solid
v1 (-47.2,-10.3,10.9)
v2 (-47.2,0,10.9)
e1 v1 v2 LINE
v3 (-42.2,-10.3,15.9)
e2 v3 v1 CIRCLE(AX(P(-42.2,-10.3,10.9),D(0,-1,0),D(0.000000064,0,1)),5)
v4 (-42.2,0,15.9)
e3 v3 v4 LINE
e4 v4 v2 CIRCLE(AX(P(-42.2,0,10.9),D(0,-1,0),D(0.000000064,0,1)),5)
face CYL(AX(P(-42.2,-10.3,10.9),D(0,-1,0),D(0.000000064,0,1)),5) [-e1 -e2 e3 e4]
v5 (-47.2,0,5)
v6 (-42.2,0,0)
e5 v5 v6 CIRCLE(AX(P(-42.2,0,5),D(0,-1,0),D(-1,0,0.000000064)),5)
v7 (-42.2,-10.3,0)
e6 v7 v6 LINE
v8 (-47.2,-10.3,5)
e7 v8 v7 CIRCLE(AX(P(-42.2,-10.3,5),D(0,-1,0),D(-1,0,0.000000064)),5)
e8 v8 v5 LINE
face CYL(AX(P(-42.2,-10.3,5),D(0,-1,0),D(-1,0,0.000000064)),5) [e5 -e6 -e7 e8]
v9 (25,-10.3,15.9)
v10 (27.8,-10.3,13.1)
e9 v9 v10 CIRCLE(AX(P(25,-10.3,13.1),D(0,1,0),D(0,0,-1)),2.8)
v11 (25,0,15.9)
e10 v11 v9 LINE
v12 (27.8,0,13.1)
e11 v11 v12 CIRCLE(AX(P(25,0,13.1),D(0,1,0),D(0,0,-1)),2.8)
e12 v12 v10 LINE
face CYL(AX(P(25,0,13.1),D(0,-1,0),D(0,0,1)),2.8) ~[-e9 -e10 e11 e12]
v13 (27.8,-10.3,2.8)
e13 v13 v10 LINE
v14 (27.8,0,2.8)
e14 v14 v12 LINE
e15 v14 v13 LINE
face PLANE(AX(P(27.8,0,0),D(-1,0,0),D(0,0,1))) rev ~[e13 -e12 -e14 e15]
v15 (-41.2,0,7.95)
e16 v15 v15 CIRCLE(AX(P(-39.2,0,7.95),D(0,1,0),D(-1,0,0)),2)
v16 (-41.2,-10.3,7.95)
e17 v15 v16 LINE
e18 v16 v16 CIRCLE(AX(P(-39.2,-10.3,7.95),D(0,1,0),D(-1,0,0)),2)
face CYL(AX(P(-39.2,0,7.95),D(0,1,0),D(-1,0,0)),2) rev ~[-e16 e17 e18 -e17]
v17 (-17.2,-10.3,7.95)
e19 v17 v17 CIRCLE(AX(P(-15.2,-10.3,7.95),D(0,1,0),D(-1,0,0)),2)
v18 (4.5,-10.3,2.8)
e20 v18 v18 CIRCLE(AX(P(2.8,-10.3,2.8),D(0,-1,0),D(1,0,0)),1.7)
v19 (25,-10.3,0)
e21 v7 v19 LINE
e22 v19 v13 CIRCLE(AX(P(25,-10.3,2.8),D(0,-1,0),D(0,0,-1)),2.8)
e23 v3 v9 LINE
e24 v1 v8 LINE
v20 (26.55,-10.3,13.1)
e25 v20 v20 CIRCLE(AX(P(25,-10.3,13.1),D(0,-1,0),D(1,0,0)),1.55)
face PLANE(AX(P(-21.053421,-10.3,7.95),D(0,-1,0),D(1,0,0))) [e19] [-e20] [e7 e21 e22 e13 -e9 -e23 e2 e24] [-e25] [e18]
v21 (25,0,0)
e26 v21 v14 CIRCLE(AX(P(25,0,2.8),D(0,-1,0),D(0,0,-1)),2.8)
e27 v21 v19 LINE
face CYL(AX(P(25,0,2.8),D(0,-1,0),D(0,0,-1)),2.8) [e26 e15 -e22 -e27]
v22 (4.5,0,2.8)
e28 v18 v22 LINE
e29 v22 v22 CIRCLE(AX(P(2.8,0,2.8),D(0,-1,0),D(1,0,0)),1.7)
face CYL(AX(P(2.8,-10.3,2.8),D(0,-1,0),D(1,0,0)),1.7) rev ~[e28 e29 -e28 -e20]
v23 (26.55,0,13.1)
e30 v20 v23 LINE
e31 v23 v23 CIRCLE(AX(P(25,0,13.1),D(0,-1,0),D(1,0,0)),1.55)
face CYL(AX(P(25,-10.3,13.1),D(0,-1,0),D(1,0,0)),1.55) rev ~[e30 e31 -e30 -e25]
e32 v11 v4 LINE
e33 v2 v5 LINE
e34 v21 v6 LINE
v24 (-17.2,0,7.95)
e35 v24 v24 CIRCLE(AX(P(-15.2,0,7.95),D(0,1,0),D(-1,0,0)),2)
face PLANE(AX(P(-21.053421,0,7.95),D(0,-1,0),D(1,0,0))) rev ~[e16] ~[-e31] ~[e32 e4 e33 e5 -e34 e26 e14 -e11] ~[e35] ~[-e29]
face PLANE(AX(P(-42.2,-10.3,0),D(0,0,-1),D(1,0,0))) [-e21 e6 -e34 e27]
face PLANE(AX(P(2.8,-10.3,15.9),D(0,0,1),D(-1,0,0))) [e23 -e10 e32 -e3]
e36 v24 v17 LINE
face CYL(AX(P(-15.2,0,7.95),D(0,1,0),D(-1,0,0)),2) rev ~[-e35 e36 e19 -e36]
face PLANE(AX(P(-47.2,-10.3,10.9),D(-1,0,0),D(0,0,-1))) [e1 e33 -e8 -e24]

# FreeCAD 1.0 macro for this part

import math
import FreeCAD as App
import Part
import Sketcher
Q = App.Units.Quantity


def edges_at(feature, points):
    """Names of the edges that pass closest to the given points."""
    edges = feature.Shape.Edges
    near = lambda p: min(range(len(edges)), key=lambda i: edges[i].distToShape(Part.Vertex(*p))[0])
    return sorted({f"Edge{near(p) + 1}" for p in points})


def add_polygon(sketch, points):
    """Adds a closed chain of lines whose ends are joined by coincident constraints."""
    first, n = sketch.GeometryCount, len(points)
    for a, b in zip(points, points[1:] + points[:1]):
        sketch.addGeometry(Part.LineSegment(App.Vector(*a, 0), App.Vector(*b, 0)), False)
    for i in range(n):
        sketch.addConstraint(Sketcher.Constraint("Coincident", first + i, 2, first + (i + 1) % n, 1))

doc = App.newDocument("Part")
params = doc.addObject("Spreadsheet::Sheet", "Params")
for row, (alias, value) in enumerate([
    ("sketch1_width", "27.8 mm"),
    ("sketch1_height", "15.9 mm"),
    ("pad1_length", "10.3 mm"),
    ("sketch2_diameter", "3.4 mm"),
    ("sketch2_diameter2", "3.1 mm"),
    ("fillet_radius", "2.8 mm"),
    ("sketch3_radius", "5 mm"),
    ("sketch3_radius2", "2.8 mm"),
    ("sketch3_width", "45 mm"),
    ("sketch3_height", "5.9 mm"),
    ("pad2_length", "10.3 mm"),
    ("sketch4_diameter", "4 mm"),
], start=1):
    params.set(f"A{row}", alias)
    params.set(f"B{row}", "=" + value)
    params.setAlias(f"B{row}", alias)

body = doc.addObject("PartDesign::Body", "Body")

# Sketch on XZ plane
sketch1 = body.newObject("Sketcher::SketchObject", "Sketch")
sketch1.AttachmentSupport = (doc.getObject("XZ_Plane"), [""])
sketch1.MapMode = "FlatFace"
add_polygon(sketch1, [(0, 16), (0, 0), (28, 0), (28, 16)])  # lines 0-3
sketch1.addConstraint([
    Sketcher.Constraint("Vertical", 0),
    Sketcher.Constraint("Horizontal", 1),
    Sketcher.Constraint("Vertical", 2),
    Sketcher.Constraint("Horizontal", 3),
    Sketcher.Constraint("Coincident", 0, 2, -1, 1),
    Sketcher.Constraint("DistanceX", 1, 1, 1, 2, Q("27.8 mm")),
    Sketcher.Constraint("DistanceY", 0, 2, 0, 1, Q("15.9 mm")),
])
sketch1.setExpression("Constraints[9]", "Params.sketch1_width")
sketch1.setExpression("Constraints[10]", "Params.sketch1_height")
pad1 = body.newObject("PartDesign::Pad", "Pad")
pad1.Profile = sketch1
pad1.setExpression("Length", "Params.pad1_length")

# Sketch on XZ plane
sketch2 = body.newObject("Sketcher::SketchObject", "Sketch001")
sketch2.AttachmentSupport = (doc.getObject("XZ_Plane"), [""])
sketch2.MapMode = "FlatFace"
sketch2.AttachmentOffset = App.Placement(App.Vector(0, 0, 10.3), App.Rotation())
sketch2.addGeometry([
    Part.Circle(App.Vector(2.8, 2.8, 0), App.Vector(0, 0, 1), 1.7),
    Part.Circle(App.Vector(25, 13.1, 0), App.Vector(0, 0, 1), 1.6),
], False)
sketch2.addConstraint([
    Sketcher.Constraint("Diameter", 0, Q("3.4 mm")),
    Sketcher.Constraint("Diameter", 1, Q("3.1 mm")),
    Sketcher.Constraint("DistanceX", -1, 1, 1, 3, Q("25 mm")),
    Sketcher.Constraint("DistanceX", -1, 1, 0, 3, Q("2.8 mm")),
    Sketcher.Constraint("DistanceY", -1, 1, 0, 3, Q("2.8 mm")),
    Sketcher.Constraint("DistanceY", -1, 1, 1, 3, Q("13.1 mm")),
])
sketch2.setExpression("Constraints[0]", "Params.sketch2_diameter")
sketch2.setExpression("Constraints[1]", "Params.sketch2_diameter2")
pocket1 = body.newObject("PartDesign::Pocket", "Pocket")
pocket1.Profile = sketch2
pocket1.Type = "ThroughAll"
doc.recompute()

fillet = body.newObject("PartDesign::Fillet", "Fillet")
fillet.Base = (pocket1, edges_at(pocket1, [
    (0, -5.15, 0),
    (0, -5.15, 15.9),
    (27.8, -5.15, 0),
    (27.8, -5.15, 15.9),
]))
fillet.setExpression("Radius", "Params.fillet_radius")

# Sketch on XZ plane
sketch3 = body.newObject("Sketcher::SketchObject", "Sketch002")
sketch3.AttachmentSupport = (doc.getObject("XZ_Plane"), [""])
sketch3.MapMode = "FlatFace"
sketch3.AttachmentOffset = App.Placement(App.Vector(0, 0, 10.3), App.Rotation())
sketch3.addGeometry([
    Part.ArcOfCircle(Part.Circle(App.Vector(2.8, 13.1, 0), App.Vector(0, 0, 1), 2.8), math.radians(90), math.radians(180)),  # 0
    Part.LineSegment(App.Vector(2.8, 15.9, 0), App.Vector(-42.2, 15.9, 0)),  # 1
    Part.ArcOfCircle(Part.Circle(App.Vector(-42.2, 10.9, 0), App.Vector(0, 0, 1), 5), math.radians(90), math.radians(180)),  # 2
    Part.LineSegment(App.Vector(-47.2, 10.9, 0), App.Vector(-47.2, 5, 0)),  # 3
    Part.ArcOfCircle(Part.Circle(App.Vector(-42.2, 5, 0), App.Vector(0, 0, 1), 5), math.radians(180), math.radians(270)),  # 4
    Part.LineSegment(App.Vector(-42.2, 0, 0), App.Vector(2.8, 0, 0)),  # 5
    Part.ArcOfCircle(Part.Circle(App.Vector(2.8, 2.8, 0), App.Vector(0, 0, 1), 2.8), math.radians(180), math.radians(270)),  # 6
    Part.LineSegment(App.Vector(0, 2.8, 0), App.Vector(0, 13.1, 0)),  # 7
], False)
sketch3.addConstraint([
    Sketcher.Constraint("Tangent", 0, 1, 1, 1),
    Sketcher.Constraint("Tangent", 1, 2, 2, 1),
    Sketcher.Constraint("Tangent", 2, 2, 3, 1),
    Sketcher.Constraint("Tangent", 3, 2, 4, 1),
    Sketcher.Constraint("Tangent", 4, 2, 5, 1),
    Sketcher.Constraint("Tangent", 5, 2, 6, 2),
    Sketcher.Constraint("Tangent", 6, 1, 7, 1),
    Sketcher.Constraint("Tangent", 7, 2, 0, 2),
    Sketcher.Constraint("Horizontal", 1),
    Sketcher.Constraint("Vertical", 3),
    Sketcher.Constraint("Horizontal", 5),
    Sketcher.Constraint("Vertical", 7),
    Sketcher.Constraint("Equal", 2, 4),
    Sketcher.Constraint("Equal", 0, 6),
    Sketcher.Constraint("PointOnObject", 4, 2, -1),
    Sketcher.Constraint("PointOnObject", 6, 1, -2),
    Sketcher.Constraint("Radius", 2, Q("5 mm")),
    Sketcher.Constraint("Radius", 0, Q("2.8 mm")),
    Sketcher.Constraint("DistanceX", 1, 2, 1, 1, Q("45 mm")),
    Sketcher.Constraint("DistanceY", 3, 2, 3, 1, Q("5.9 mm")),
])
sketch3.setExpression("Constraints[16]", "Params.sketch3_radius")
sketch3.setExpression("Constraints[17]", "Params.sketch3_radius2")
sketch3.setExpression("Constraints[18]", "Params.sketch3_width")
sketch3.setExpression("Constraints[19]", "Params.sketch3_height")
pad2 = body.newObject("PartDesign::Pad", "Pad001")
pad2.Profile = sketch3
pad2.setExpression("Length", "Params.pad2_length")
pad2.Reversed = True

# Sketch on XZ plane
sketch4 = body.newObject("Sketcher::SketchObject", "Sketch003")
sketch4.AttachmentSupport = (doc.getObject("XZ_Plane"), [""])
sketch4.MapMode = "FlatFace"
sketch4.addGeometry([
    Part.Circle(App.Vector(-39.2, 8, 0), App.Vector(0, 0, 1), 2),
    Part.Circle(App.Vector(-15.2, 8, 0), App.Vector(0, 0, 1), 2),
], False)
sketch4.addConstraint([
    Sketcher.Constraint("Equal", 0, 1),
    Sketcher.Constraint("Horizontal", 0, 3, 1, 3),
    Sketcher.Constraint("Diameter", 0, Q("4 mm")),
    Sketcher.Constraint("DistanceX", 0, 3, 1, 3, Q("24 mm")),
    Sketcher.Constraint("DistanceX", 0, 3, -1, 1, Q("39.2 mm")),
    Sketcher.Constraint("DistanceY", -1, 1, 0, 3, Q("7.95 mm")),
])
sketch4.setExpression("Constraints[2]", "Params.sketch4_diameter")
pocket2 = body.newObject("PartDesign::Pocket", "Pocket001")
pocket2.Profile = sketch4
pocket2.Type = "ThroughAll"
pocket2.Reversed = True

doc.recompute()
